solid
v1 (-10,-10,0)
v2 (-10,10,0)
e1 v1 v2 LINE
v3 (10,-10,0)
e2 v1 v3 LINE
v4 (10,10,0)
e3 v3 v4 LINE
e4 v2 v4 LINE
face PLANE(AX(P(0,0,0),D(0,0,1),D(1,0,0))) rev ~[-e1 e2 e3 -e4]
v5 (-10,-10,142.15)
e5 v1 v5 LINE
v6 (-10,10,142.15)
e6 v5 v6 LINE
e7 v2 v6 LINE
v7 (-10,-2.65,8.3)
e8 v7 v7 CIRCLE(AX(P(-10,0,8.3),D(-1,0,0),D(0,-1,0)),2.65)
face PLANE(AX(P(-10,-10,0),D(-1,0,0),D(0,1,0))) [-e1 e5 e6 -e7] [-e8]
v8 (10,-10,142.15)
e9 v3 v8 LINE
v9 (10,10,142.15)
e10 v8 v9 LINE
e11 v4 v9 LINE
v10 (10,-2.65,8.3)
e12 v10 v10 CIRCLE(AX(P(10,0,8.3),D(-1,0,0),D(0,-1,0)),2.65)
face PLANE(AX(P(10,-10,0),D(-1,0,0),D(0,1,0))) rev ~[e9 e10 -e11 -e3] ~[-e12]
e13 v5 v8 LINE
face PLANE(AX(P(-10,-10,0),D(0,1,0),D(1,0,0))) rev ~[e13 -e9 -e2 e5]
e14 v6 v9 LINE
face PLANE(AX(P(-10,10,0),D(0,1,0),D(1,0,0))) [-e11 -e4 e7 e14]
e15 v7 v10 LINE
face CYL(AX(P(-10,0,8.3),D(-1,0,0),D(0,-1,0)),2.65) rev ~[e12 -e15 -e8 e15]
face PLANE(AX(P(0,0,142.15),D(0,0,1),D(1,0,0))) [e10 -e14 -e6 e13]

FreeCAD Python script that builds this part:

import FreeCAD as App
import Part
import Sketcher

doc = App.newDocument("Part")
body = doc.addObject("PartDesign::Body", "Body")

# Sketch on XY plane
sketch1 = body.newObject("Sketcher::SketchObject", "Sketch")
sketch1.AttachmentSupport = (doc.getObject("XY_Plane"), [""])
sketch1.MapMode = "FlatFace"
sketch1.addGeometry(Part.LineSegment(App.Vector(-10, 10, 0), App.Vector(-10, -10, 0)), False)
sketch1.addGeometry(Part.LineSegment(App.Vector(-10, -10, 0), App.Vector(10, -10, 0)), False)
sketch1.addGeometry(Part.LineSegment(App.Vector(10, -10, 0), App.Vector(10, 10, 0)), False)
sketch1.addGeometry(Part.LineSegment(App.Vector(10, 10, 0), App.Vector(-10, 10, 0)), False)
sketch1.addConstraint(Sketcher.Constraint("Coincident", 0, 2, 1, 1))
sketch1.addConstraint(Sketcher.Constraint("Coincident", 1, 2, 2, 1))
sketch1.addConstraint(Sketcher.Constraint("Coincident", 2, 2, 3, 1))
sketch1.addConstraint(Sketcher.Constraint("Coincident", 3, 2, 0, 1))
sketch1.addConstraint(Sketcher.Constraint("Vertical", 0))
sketch1.addConstraint(Sketcher.Constraint("Horizontal", 1))
sketch1.addConstraint(Sketcher.Constraint("Vertical", 2))
sketch1.addConstraint(Sketcher.Constraint("Horizontal", 3))
sketch1.addConstraint(Sketcher.Constraint("Symmetric", 0, 2, 2, 2, -1, 1))
sketch1.addConstraint(Sketcher.Constraint("Equal", 3, 0))
sketch1.addConstraint(Sketcher.Constraint("DistanceX", 1, 1, 1, 2, 20.0))
pad1 = body.newObject("PartDesign::Pad", "Pad")
pad1.Profile = sketch1
pad1.Length = 142.15

# Sketch on YZ plane
sketch2 = body.newObject("Sketcher::SketchObject", "Sketch001")
sketch2.AttachmentSupport = (doc.getObject("YZ_Plane"), [""])
sketch2.MapMode = "FlatFace"
sketch2.AttachmentOffset = App.Placement(App.Vector(0, 0, -10), App.Rotation())
sketch2.addGeometry(Part.Circle(App.Vector(0, 8.3, 0), App.Vector(0, 0, 1), 2.6), False)
sketch2.addConstraint(Sketcher.Constraint("PointOnObject", 0, 3, -2))
sketch2.addConstraint(Sketcher.Constraint("Diameter", 0, 5.3))
sketch2.addConstraint(Sketcher.Constraint("DistanceY", -1, 1, 0, 3, 8.3))
pocket1 = body.newObject("PartDesign::Pocket", "Pocket")
pocket1.Profile = sketch2
pocket1.Type = "ThroughAll"
pocket1.Reversed = True

doc.recompute()
